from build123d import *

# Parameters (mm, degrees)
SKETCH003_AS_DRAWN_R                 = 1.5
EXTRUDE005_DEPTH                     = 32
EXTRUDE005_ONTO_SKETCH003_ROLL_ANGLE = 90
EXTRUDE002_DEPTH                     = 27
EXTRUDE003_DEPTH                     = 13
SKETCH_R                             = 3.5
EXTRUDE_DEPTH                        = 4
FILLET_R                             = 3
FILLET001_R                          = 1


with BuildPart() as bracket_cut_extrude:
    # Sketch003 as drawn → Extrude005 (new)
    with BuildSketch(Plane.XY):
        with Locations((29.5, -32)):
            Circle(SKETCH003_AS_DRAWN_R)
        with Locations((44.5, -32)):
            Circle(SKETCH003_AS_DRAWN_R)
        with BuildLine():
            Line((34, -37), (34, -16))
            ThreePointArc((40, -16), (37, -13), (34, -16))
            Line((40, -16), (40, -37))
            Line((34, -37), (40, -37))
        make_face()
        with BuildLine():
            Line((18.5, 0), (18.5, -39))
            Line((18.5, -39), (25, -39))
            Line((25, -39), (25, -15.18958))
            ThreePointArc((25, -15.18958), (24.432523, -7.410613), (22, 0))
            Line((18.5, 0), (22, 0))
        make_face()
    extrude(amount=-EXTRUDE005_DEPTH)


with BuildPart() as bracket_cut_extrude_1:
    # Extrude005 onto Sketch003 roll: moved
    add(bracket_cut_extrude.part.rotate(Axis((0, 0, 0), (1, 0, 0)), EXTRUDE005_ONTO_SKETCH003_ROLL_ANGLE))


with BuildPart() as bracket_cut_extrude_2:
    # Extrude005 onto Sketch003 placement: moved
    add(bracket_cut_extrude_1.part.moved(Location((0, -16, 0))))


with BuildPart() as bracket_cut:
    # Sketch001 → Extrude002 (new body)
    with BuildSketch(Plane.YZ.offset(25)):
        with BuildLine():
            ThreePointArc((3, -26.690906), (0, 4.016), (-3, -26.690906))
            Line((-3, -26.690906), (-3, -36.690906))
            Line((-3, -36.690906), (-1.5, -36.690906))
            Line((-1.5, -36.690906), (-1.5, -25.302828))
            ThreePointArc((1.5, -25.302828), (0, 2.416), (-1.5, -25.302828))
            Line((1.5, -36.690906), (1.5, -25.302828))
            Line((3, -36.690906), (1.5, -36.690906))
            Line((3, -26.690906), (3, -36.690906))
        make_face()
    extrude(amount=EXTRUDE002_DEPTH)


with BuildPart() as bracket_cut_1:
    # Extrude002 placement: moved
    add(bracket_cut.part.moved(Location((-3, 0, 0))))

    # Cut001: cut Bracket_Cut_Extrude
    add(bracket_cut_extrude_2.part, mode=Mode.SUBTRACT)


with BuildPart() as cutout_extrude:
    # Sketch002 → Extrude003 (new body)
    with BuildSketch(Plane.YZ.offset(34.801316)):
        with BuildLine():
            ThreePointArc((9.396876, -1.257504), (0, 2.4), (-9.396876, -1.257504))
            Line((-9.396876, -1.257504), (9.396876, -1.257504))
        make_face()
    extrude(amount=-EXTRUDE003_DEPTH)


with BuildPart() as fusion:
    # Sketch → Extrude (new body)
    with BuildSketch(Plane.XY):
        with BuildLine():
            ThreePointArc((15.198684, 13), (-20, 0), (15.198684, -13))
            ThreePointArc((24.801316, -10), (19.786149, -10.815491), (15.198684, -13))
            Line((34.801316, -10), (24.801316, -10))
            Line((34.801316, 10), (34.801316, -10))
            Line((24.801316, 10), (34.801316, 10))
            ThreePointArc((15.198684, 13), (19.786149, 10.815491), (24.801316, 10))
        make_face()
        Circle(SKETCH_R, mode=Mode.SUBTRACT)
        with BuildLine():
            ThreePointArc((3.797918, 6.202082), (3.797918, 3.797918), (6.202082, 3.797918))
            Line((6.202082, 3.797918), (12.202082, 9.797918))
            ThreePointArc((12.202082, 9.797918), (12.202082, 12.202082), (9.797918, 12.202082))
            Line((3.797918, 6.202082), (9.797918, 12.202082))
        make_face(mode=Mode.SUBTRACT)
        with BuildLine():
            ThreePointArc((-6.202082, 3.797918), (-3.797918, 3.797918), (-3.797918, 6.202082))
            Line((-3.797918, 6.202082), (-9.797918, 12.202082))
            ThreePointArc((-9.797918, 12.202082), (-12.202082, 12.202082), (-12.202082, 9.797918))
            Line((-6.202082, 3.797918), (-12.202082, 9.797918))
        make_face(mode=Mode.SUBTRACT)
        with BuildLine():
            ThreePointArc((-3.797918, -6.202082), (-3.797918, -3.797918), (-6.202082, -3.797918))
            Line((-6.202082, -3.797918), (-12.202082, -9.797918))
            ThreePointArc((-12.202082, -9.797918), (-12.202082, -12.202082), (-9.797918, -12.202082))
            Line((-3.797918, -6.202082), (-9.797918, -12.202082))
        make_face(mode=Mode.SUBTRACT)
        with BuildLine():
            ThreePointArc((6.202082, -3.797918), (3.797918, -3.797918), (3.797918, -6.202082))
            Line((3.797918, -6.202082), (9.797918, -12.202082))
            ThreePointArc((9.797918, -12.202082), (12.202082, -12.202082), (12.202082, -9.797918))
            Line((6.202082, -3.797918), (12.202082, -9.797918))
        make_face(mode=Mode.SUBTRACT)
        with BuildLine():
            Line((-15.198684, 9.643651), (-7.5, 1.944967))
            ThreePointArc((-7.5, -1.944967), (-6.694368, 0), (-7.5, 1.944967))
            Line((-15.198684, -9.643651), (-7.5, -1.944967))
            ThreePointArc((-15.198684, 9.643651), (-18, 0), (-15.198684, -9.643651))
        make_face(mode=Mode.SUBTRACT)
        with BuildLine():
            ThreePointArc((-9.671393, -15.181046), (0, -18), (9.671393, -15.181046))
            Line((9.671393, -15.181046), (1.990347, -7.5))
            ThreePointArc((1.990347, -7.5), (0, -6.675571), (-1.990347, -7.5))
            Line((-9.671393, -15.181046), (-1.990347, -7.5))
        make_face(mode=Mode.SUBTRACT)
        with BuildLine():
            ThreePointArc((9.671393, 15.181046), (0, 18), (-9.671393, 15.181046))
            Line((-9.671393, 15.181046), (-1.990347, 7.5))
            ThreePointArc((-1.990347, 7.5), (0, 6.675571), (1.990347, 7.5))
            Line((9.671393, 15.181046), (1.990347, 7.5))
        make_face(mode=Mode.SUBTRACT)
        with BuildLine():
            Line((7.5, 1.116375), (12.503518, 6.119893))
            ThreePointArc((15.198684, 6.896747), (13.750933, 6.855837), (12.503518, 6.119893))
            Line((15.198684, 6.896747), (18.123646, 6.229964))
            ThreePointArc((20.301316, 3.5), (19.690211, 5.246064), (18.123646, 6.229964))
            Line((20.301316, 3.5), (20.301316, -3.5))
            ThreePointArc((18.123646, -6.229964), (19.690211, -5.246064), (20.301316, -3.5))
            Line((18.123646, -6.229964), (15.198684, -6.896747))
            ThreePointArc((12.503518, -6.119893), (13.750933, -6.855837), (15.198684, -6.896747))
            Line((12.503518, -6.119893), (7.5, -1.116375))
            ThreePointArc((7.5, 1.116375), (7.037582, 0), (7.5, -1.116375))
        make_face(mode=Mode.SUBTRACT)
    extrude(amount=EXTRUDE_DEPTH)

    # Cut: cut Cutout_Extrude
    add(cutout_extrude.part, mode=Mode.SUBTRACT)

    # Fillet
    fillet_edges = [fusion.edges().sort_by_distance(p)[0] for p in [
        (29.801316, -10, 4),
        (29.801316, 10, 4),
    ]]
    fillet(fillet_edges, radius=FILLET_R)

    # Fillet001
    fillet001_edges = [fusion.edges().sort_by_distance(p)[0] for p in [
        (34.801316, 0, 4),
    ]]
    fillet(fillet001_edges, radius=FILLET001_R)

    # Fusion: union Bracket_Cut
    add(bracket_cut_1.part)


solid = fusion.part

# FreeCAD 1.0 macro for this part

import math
import FreeCAD as App
import Part
import Sketcher
from FreeCAD import Vector
Q = App.Units.Quantity


def edges_at(feature, points):
    """Names of the edges that pass closest to the given points."""
    edges = feature.Shape.Edges
    near = lambda p: min(range(len(edges)), key=lambda i: edges[i].distToShape(Part.Vertex(*p))[0])
    return sorted({f"Edge{near(p) + 1}" for p in points})

doc = App.newDocument("Part")
body = doc.addObject("PartDesign::Body", "Body")
body.AllowCompound = True

# Sketch on XY plane
sketch1 = body.newObject("Sketcher::SketchObject", "Sketch")
sketch1.AttachmentSupport = (doc.getObject("XY_Plane"), [""])
sketch1.MapMode = "FlatFace"
sketch1.addGeometry([
    Part.Circle(Vector(29.5, -32, 0), Vector(0, 0, 1), 1.5),  # 0
    Part.Circle(Vector(44.5, -32, 0), Vector(0, 0, 1), 1.5),  # 1
    Part.LineSegment(Vector(34, -16, 0), Vector(34, -37, 0)),  # 2
    Part.LineSegment(Vector(34, -37, 0), Vector(40, -37, 0)),  # 3
    Part.LineSegment(Vector(40, -37, 0), Vector(40, -16, 0)),  # 4
    Part.ArcOfCircle(Part.Circle(Vector(37, -16, 0), Vector(0, 0, 1), 3), math.radians(0), math.radians(180)),  # 5
    Part.LineSegment(Vector(18.5, 0, 0), Vector(18.5, -39, 0)),  # 6
    Part.LineSegment(Vector(18.5, -39, 0), Vector(25, -39, 0)),  # 7
    Part.LineSegment(Vector(25, -39, 0), Vector(25, -15.2, 0)),  # 8
    Part.ArcOfCircle(Part.Circle(Vector(-7, -13.6, 0), Vector(0, 0, 1), 32), math.radians(-3), math.radians(25)),  # 9
    Part.LineSegment(Vector(22, 0, 0), Vector(18.5, 0, 0)),  # 10
], False)
sketch1.addConstraint([
    Sketcher.Constraint("Coincident", 2, 2, 3, 1),
    Sketcher.Constraint("Coincident", 3, 2, 4, 1),
    Sketcher.Constraint("Tangent", 4, 2, 5, 1),
    Sketcher.Constraint("Tangent", 5, 2, 2, 1),
    Sketcher.Constraint("Coincident", 6, 2, 7, 1),
    Sketcher.Constraint("Coincident", 7, 2, 8, 1),
    Sketcher.Constraint("Coincident", 8, 2, 9, 1),
    Sketcher.Constraint("Coincident", 9, 2, 10, 1),
    Sketcher.Constraint("Coincident", 10, 2, 6, 1),
    Sketcher.Constraint("Vertical", 2),
    Sketcher.Constraint("Horizontal", 3),
    Sketcher.Constraint("Vertical", 4),
    Sketcher.Constraint("Vertical", 6),
    Sketcher.Constraint("Horizontal", 7),
    Sketcher.Constraint("Vertical", 8),
    Sketcher.Constraint("Horizontal", 10),
    Sketcher.Constraint("Equal", 0, 1),
    Sketcher.Constraint("PointOnObject", 9, 2, -1),
    Sketcher.Constraint("Horizontal", 0, 3, 1, 3),
    Sketcher.Constraint("Diameter", 0, Q("3 mm")),
    Sketcher.Constraint("Radius", 5, Q("3 mm")),
    Sketcher.Constraint("Radius", 9, Q("31.999998 mm")),
    Sketcher.Constraint("DistanceY", 2, 2, 2, 1, Q("21 mm")),
    Sketcher.Constraint("DistanceY", 6, 2, 6, 1, Q("39 mm")),
    Sketcher.Constraint("DistanceX", 7, 1, 7, 2, Q("6.5 mm")),
    Sketcher.Constraint("DistanceX", 10, 2, 10, 1, Q("3.5 mm")),
    Sketcher.Constraint("DistanceY", 0, 3, -1, 1, Q("32 mm")),
    Sketcher.Constraint("DistanceX", -1, 1, 5, 3, Q("37 mm")),
    Sketcher.Constraint("DistanceY", 5, 3, -1, 1, Q("16 mm")),
    Sketcher.Constraint("DistanceX", -1, 1, 7, 2, Q("25 mm")),
    Sketcher.Constraint("DistanceX", 0, 3, 1, 3, Q("15 mm")),
    Sketcher.Constraint("DistanceX", 6, 2, 0, 3, Q("11 mm")),
    Sketcher.Constraint("DistanceY", 8, 1, 8, 2, Q("23.81042 mm")),
])
pad1 = body.newObject("PartDesign::Pad", "Pad")
pad1.Profile = sketch1
pad1.Length = 32
pad1.Reversed = True
body2 = doc.addObject("PartDesign::Body", "Body001")
body2.AllowCompound = True
doc.recompute()

body.Placement = App.Placement(Vector(0, 0, 0), App.Rotation(Vector(1, 0, 0), 90))
boolean = body2.newObject("PartDesign::Boolean", "Boolean")
boolean.Type = "Fuse"
boolean.addObjects([body])
body3 = doc.addObject("PartDesign::Body", "Body002")
body3.AllowCompound = True
doc.recompute()

body2.Placement = App.Placement(Vector(0, -16, 0), App.Rotation(Vector(0, 0, 1), 0))
boolean2 = body3.newObject("PartDesign::Boolean", "Boolean001")
boolean2.Type = "Fuse"
boolean2.addObjects([body2])
body4 = doc.addObject("PartDesign::Body", "Body003")

# Sketch on YZ plane
sketch2 = body4.newObject("Sketcher::SketchObject", "Sketch001")
sketch2.AttachmentSupport = (doc.getObject("YZ_Plane003"), [""])
sketch2.MapMode = "FlatFace"
sketch2.AttachmentOffset = App.Placement(Vector(0, 0, 25), App.Rotation())
sketch2.addGeometry([
    Part.ArcOfCircle(Part.Circle(Vector(0, -11.5, 0), Vector(0, 0, 1), 15.5), math.radians(-79), math.radians(259)),  # 0
    Part.LineSegment(Vector(-3, -26.7, 0), Vector(-3, -36.7, 0)),  # 1
    Part.LineSegment(Vector(-3, -36.7, 0), Vector(-1.5, -36.7, 0)),  # 2
    Part.LineSegment(Vector(-1.5, -36.7, 0), Vector(-1.5, -25.3, 0)),  # 3
    Part.ArcOfCircle(Part.Circle(Vector(0, -11.5, 0), Vector(0, 0, 1), 13.9), math.radians(-84), math.radians(264)),  # 4
    Part.LineSegment(Vector(1.5, -25.3, 0), Vector(1.5, -36.7, 0)),  # 5
    Part.LineSegment(Vector(1.5, -36.7, 0), Vector(3, -36.7, 0)),  # 6
    Part.LineSegment(Vector(3, -36.7, 0), Vector(3, -26.7, 0)),  # 7
], False)
sketch2.addConstraint([
    Sketcher.Constraint("Coincident", 0, 2, 1, 1),
    Sketcher.Constraint("Coincident", 1, 2, 2, 1),
    Sketcher.Constraint("Coincident", 2, 2, 3, 1),
    Sketcher.Constraint("Coincident", 3, 2, 4, 2),
    Sketcher.Constraint("Coincident", 4, 1, 5, 1),
    Sketcher.Constraint("Coincident", 5, 2, 6, 1),
    Sketcher.Constraint("Coincident", 6, 2, 7, 1),
    Sketcher.Constraint("Coincident", 7, 2, 0, 1),
    Sketcher.Constraint("Vertical", 1),
    Sketcher.Constraint("Horizontal", 2),
    Sketcher.Constraint("Vertical", 3),
    Sketcher.Constraint("Vertical", 5),
    Sketcher.Constraint("Horizontal", 6),
    Sketcher.Constraint("Vertical", 7),
    Sketcher.Constraint("Coincident", 4, 3, 0, 3),
    Sketcher.Constraint("Symmetric", 3, 2, 4, 1, -2),
    Sketcher.Constraint("Symmetric", 1, 2, 6, 2, -2),
    Sketcher.Constraint("Radius", 0, Q("15.5 mm")),
    Sketcher.Constraint("Radius", 4, Q("13.9 mm")),
    Sketcher.Constraint("DistanceY", 1, 2, 1, 1, Q("10 mm")),
    Sketcher.Constraint("DistanceX", 2, 1, 2, 2, Q("1.5 mm")),
    Sketcher.Constraint("DistanceX", 0, 2, -1, 1, Q("3 mm")),
    Sketcher.Constraint("DistanceY", 0, 3, -1, 1, Q("11.484 mm")),
])
pad2 = body4.newObject("PartDesign::Pad", "Pad001")
pad2.Profile = sketch2
pad2.Length = 27
body5 = doc.addObject("PartDesign::Body", "Body004")
doc.recompute()

body4.Placement = App.Placement(Vector(-3, 0, 0), App.Rotation(Vector(0, 0, 1), 0))
boolean3 = body5.newObject("PartDesign::Boolean", "Boolean002")
boolean3.Type = "Fuse"
boolean3.addObjects([body4])
doc.recompute()

boolean4 = body5.newObject("PartDesign::Boolean", "Boolean003")
boolean4.Type = "Cut"
boolean4.addObjects([body3])
body6 = doc.addObject("PartDesign::Body", "Body005")

# Sketch on YZ plane
sketch3 = body6.newObject("Sketcher::SketchObject", "Sketch002")
sketch3.AttachmentSupport = (doc.getObject("YZ_Plane005"), [""])
sketch3.MapMode = "FlatFace"
sketch3.AttachmentOffset = App.Placement(Vector(0, 0, 34.801316), App.Rotation())
sketch3.addGeometry([
    Part.ArcOfCircle(Part.Circle(Vector(0, -12, 0), Vector(0, 0, 1), 14), math.radians(47), math.radians(133)),
    Part.LineSegment(Vector(-9, -1, 0), Vector(9, -1, 0)),
], False)
sketch3.addConstraint([
    Sketcher.Constraint("Coincident", 0, 1, 1, 2),
    Sketcher.Constraint("Coincident", 1, 1, 0, 2),
    Sketcher.Constraint("Horizontal", 1),
    Sketcher.Constraint("PointOnObject", 0, 3, -2),
    Sketcher.Constraint("Radius", 0, Q("13.9 mm")),
    Sketcher.Constraint("DistanceY", 0, 3, -1, 1, Q("11.5 mm")),
    Sketcher.Constraint("DistanceX", 1, 1, 1, 2, Q("18.793752 mm")),
])
pad3 = body6.newObject("PartDesign::Pad", "Pad002")
pad3.Profile = sketch3
pad3.Length = 13
pad3.Reversed = True
body7 = doc.addObject("PartDesign::Body", "Body006")

# Sketch on XY plane
sketch4 = body7.newObject("Sketcher::SketchObject", "Sketch003")
sketch4.AttachmentSupport = (doc.getObject("XY_Plane006"), [""])
sketch4.MapMode = "FlatFace"
sketch4.addGeometry([
    Part.ArcOfCircle(Part.Circle(Vector(0, 0, 0), Vector(0, 0, 1), 20), math.radians(41), math.radians(319)),  # 0
    Part.ArcOfCircle(Part.Circle(Vector(25.2, -28, 0), Vector(0, 0, 1), 18), math.radians(91), math.radians(124)),  # 1
    Part.LineSegment(Vector(24.8, -10, 0), Vector(34.8, -10, 0)),  # 2
    Part.LineSegment(Vector(34.8, -10, 0), Vector(34.8, 10, 0)),  # 3
    Part.LineSegment(Vector(34.8, 10, 0), Vector(24.8, 10, 0)),  # 4
    Part.ArcOfCircle(Part.Circle(Vector(25.2, 28, 0), Vector(0, 0, 1), 18), math.radians(-124), math.radians(-91)),  # 5
    Part.ArcOfCircle(Part.Circle(Vector(0, 0, 0), Vector(0, 0, 1), 18), math.radians(-123), math.radians(-57)),  # 6
    Part.LineSegment(Vector(-9.7, -15.2, 0), Vector(-2, -7.5, 0)),  # 7
    Part.ArcOfCircle(Part.Circle(Vector(0, -9.5, 0), Vector(0, 0, 1), 2.8), math.radians(45), math.radians(135)),  # 8
    Part.LineSegment(Vector(2, -7.5, 0), Vector(9.7, -15.2, 0)),  # 9
    Part.ArcOfCircle(Part.Circle(Vector(-5, -5, 0), Vector(0, 0, 1), 1.7), math.radians(-45), math.radians(135)),  # 10
    Part.LineSegment(Vector(-3.8, -6.2, 0), Vector(-9.8, -12.2, 0)),  # 11
    Part.ArcOfCircle(Part.Circle(Vector(-11, -11, 0), Vector(0, 0, 1), 1.7), math.radians(135), math.radians(315)),  # 12
    Part.LineSegment(Vector(-12.2, -9.8, 0), Vector(-6.2, -3.8, 0)),  # 13
    Part.ArcOfCircle(Part.Circle(Vector(5, -5, 0), Vector(0, 0, 1), 1.7), math.radians(45), math.radians(225)),  # 14
    Part.LineSegment(Vector(6.2, -3.8, 0), Vector(12.2, -9.8, 0)),  # 15
    Part.ArcOfCircle(Part.Circle(Vector(11, -11, 0), Vector(0, 0, 1), 1.7), math.radians(-135), math.radians(45)),  # 16
    Part.LineSegment(Vector(9.8, -12.2, 0), Vector(3.8, -6.2, 0)),  # 17
    Part.ArcOfCircle(Part.Circle(Vector(0, 0, 0), Vector(0, 0, 1), 18), math.radians(148), math.radians(212)),  # 18
    Part.LineSegment(Vector(-15.2, 9.6, 0), Vector(-7.5, 1.9, 0)),  # 19
    Part.ArcOfCircle(Part.Circle(Vector(-9.4, 0, 0), Vector(0, 0, 1), 2.8), math.radians(-45), math.radians(45)),  # 20
    Part.LineSegment(Vector(-7.5, -1.9, 0), Vector(-15.2, -9.6, 0)),  # 21
    Part.Circle(Vector(0, 0, 0), Vector(0, 0, 1), 3.5),  # 22
    Part.ArcOfCircle(Part.Circle(Vector(-5, 5, 0), Vector(0, 0, 1), 1.7), math.radians(-135), math.radians(45)),  # 23
    Part.LineSegment(Vector(-6.2, 3.8, 0), Vector(-12.2, 9.8, 0)),  # 24
    Part.ArcOfCircle(Part.Circle(Vector(-11, 11, 0), Vector(0, 0, 1), 1.7), math.radians(45), math.radians(225)),  # 25
    Part.LineSegment(Vector(-9.8, 12.2, 0), Vector(-3.8, 6.2, 0)),  # 26
    Part.ArcOfCircle(Part.Circle(Vector(0, 0, 0), Vector(0, 0, 1), 18), math.radians(57), math.radians(123)),  # 27
    Part.LineSegment(Vector(9.7, 15.2, 0), Vector(2, 7.5, 0)),  # 28
    Part.ArcOfCircle(Part.Circle(Vector(0, 9.5, 0), Vector(0, 0, 1), 2.8), math.radians(-135), math.radians(-45)),  # 29
    Part.LineSegment(Vector(-2, 7.5, 0), Vector(-9.7, 15.2, 0)),  # 30
    Part.ArcOfCircle(Part.Circle(Vector(5, 5, 0), Vector(0, 0, 1), 1.7), math.radians(135), math.radians(315)),  # 31
    Part.LineSegment(Vector(3.8, 6.2, 0), Vector(9.8, 12.2, 0)),  # 32
    Part.ArcOfCircle(Part.Circle(Vector(11, 11, 0), Vector(0, 0, 1), 1.7), math.radians(-45), math.radians(135)),  # 33
    Part.LineSegment(Vector(12.2, 9.8, 0), Vector(6.2, 3.8, 0)),  # 34
    Part.ArcOfCircle(Part.Circle(Vector(8.6, 0, 0), Vector(0, 0, 1), 1.6), math.radians(135), math.radians(225)),  # 35
    Part.LineSegment(Vector(7.5, 1.1, 0), Vector(12.5, 6.1, 0)),  # 36
    Part.ArcOfCircle(Part.Circle(Vector(14.6, 4.1, 0), Vector(0, 0, 1), 2.9), math.radians(77), math.radians(135)),  # 37
    Part.LineSegment(Vector(15.2, 6.9, 0), Vector(18.1, 6.2, 0)),  # 38
    Part.ArcOfCircle(Part.Circle(Vector(17.5, 3.5, 0), Vector(0, 0, 1), 2.8), math.radians(0), math.radians(77)),  # 39
    Part.LineSegment(Vector(20.3, 3.5, 0), Vector(20.3, -3.5, 0)),  # 40
    Part.ArcOfCircle(Part.Circle(Vector(17.5, -3.5, 0), Vector(0, 0, 1), 2.8), math.radians(-77), math.radians(0)),  # 41
    Part.LineSegment(Vector(18.1, -6.2, 0), Vector(15.2, -6.9, 0)),  # 42
    Part.ArcOfCircle(Part.Circle(Vector(14.6, -4.1, 0), Vector(0, 0, 1), 2.9), math.radians(-135), math.radians(-77)),  # 43
    Part.LineSegment(Vector(12.5, -6.1, 0), Vector(7.5, -1.1, 0)),  # 44
], False)
sketch4.addConstraint([
    Sketcher.Constraint("Coincident", 0, 2, 1, 2),
    Sketcher.Constraint("Coincident", 1, 1, 2, 1),
    Sketcher.Constraint("Coincident", 2, 2, 3, 1),
    Sketcher.Constraint("Coincident", 3, 2, 4, 1),
    Sketcher.Constraint("Coincident", 4, 2, 5, 2),
    Sketcher.Constraint("Coincident", 5, 1, 0, 1),
    Sketcher.Constraint("Coincident", 6, 1, 7, 1),
    Sketcher.Constraint("Tangent", 7, 2, 8, 2),
    Sketcher.Constraint("Tangent", 8, 1, 9, 1),
    Sketcher.Constraint("Coincident", 9, 2, 6, 2),
    Sketcher.Constraint("Tangent", 10, 1, 11, 1),
    Sketcher.Constraint("Tangent", 11, 2, 12, 2),
    Sketcher.Constraint("Tangent", 12, 1, 13, 1),
    Sketcher.Constraint("Tangent", 13, 2, 10, 2),
    Sketcher.Constraint("Tangent", 14, 1, 15, 1),
    Sketcher.Constraint("Tangent", 15, 2, 16, 2),
    Sketcher.Constraint("Tangent", 16, 1, 17, 1),
    Sketcher.Constraint("Tangent", 17, 2, 14, 2),
    Sketcher.Constraint("Coincident", 18, 1, 19, 1),
    Sketcher.Constraint("Tangent", 19, 2, 20, 2),
    Sketcher.Constraint("Tangent", 20, 1, 21, 1),
    Sketcher.Constraint("Coincident", 21, 2, 18, 2),
    Sketcher.Constraint("Tangent", 23, 1, 24, 1),
    Sketcher.Constraint("Tangent", 24, 2, 25, 2),
    Sketcher.Constraint("Tangent", 25, 1, 26, 1),
    Sketcher.Constraint("Tangent", 26, 2, 23, 2),
    Sketcher.Constraint("Coincident", 27, 1, 28, 1),
    Sketcher.Constraint("Tangent", 28, 2, 29, 2),
    Sketcher.Constraint("Tangent", 29, 1, 30, 1),
    Sketcher.Constraint("Coincident", 30, 2, 27, 2),
    Sketcher.Constraint("Tangent", 31, 1, 32, 1),
    Sketcher.Constraint("Tangent", 32, 2, 33, 2),
    Sketcher.Constraint("Tangent", 33, 1, 34, 1),
    Sketcher.Constraint("Tangent", 34, 2, 31, 2),
    Sketcher.Constraint("Tangent", 35, 1, 36, 1),
    Sketcher.Constraint("Tangent", 36, 2, 37, 2),
    Sketcher.Constraint("Tangent", 37, 1, 38, 1),
    Sketcher.Constraint("Tangent", 38, 2, 39, 2),
    Sketcher.Constraint("Tangent", 39, 1, 40, 1),
    Sketcher.Constraint("Tangent", 40, 2, 41, 2),
    Sketcher.Constraint("Tangent", 41, 1, 42, 1),
    Sketcher.Constraint("Tangent", 42, 2, 43, 2),
    Sketcher.Constraint("Tangent", 43, 1, 44, 1),
    Sketcher.Constraint("Tangent", 44, 2, 35, 2),
    Sketcher.Constraint("Horizontal", 2),
    Sketcher.Constraint("Vertical", 3),
    Sketcher.Constraint("Horizontal", 4),
    Sketcher.Constraint("Vertical", 40),
    Sketcher.Constraint("Coincident", 0, 3, -1, 1),
    Sketcher.Constraint("Coincident", 6, 3, -1, 1),
    Sketcher.Constraint("Coincident", 18, 3, -1, 1),
    Sketcher.Constraint("Coincident", 22, 3, -1, 1),
    Sketcher.Constraint("Coincident", 27, 3, -1, 1),
    Sketcher.Constraint("Equal", 1, 5),
    Sketcher.Constraint("Equal", 10, 12),
    Sketcher.Constraint("Equal", 12, 14),
    Sketcher.Constraint("Equal", 14, 16),
    Sketcher.Constraint("Equal", 6, 18),
    Sketcher.Constraint("Equal", 16, 23),
    Sketcher.Constraint("Equal", 23, 25),
    Sketcher.Constraint("Equal", 18, 27),
    Sketcher.Constraint("Equal", 8, 29),
    Sketcher.Constraint("Equal", 25, 31),
    Sketcher.Constraint("Equal", 31, 33),
    Sketcher.Constraint("Equal", 39, 41),
    Sketcher.Constraint("Equal", 37, 43),
    Sketcher.Constraint("Symmetric", 14, 3, 23, 3, -1, 1),
    Sketcher.Constraint("Symmetric", 16, 3, 25, 3, -1, 1),
    Sketcher.Constraint("Symmetric", 8, 3, 29, 3, -1, 1),
    Sketcher.Constraint("Symmetric", 10, 3, 31, 3, -1, 1),
    Sketcher.Constraint("Symmetric", 12, 3, 33, 3, -1, 1),
    Sketcher.Constraint("Symmetric", 10, 3, 14, 3, -2),
    Sketcher.Constraint("Symmetric", 12, 3, 16, 3, -2),
    Sketcher.Constraint("Symmetric", 7, 2, 8, 1, -2),
    Sketcher.Constraint("Symmetric", 1, 3, 5, 3, -1),
    Sketcher.Constraint("Symmetric", 37, 3, 43, 3, -1),
    Sketcher.Constraint("Symmetric", 19, 2, 20, 1, -1),
    Sketcher.Constraint("PointOnObject", 35, 3, -1),
    Sketcher.Constraint("Perpendicular", 7, 9),
    Sketcher.Constraint("Perpendicular", 9, 11),
    Sketcher.Constraint("Parallel", 17, 19),
    Sketcher.Constraint("Perpendicular", 26, 28),
    Sketcher.Constraint("Perpendicular", 28, 30),
    Sketcher.Constraint("Parallel", 34, 36),
    Sketcher.Constraint("Vertical", 1, 1, 4, 2),
    Sketcher.Constraint("Vertical", 5, 1, 37, 1),
    Sketcher.Constraint("Vertical", 38, 2, 41, 1),
    Sketcher.Constraint("Diameter", 22, Q("7 mm")),
    Sketcher.Constraint("Radius", 0, Q("20 mm")),
    Sketcher.Constraint("Radius", 6, Q("18 mm")),
    Sketcher.Constraint("Radius", 10, Q("1.700001 mm")),
    Sketcher.Constraint("Radius", 37, Q("2.899999 mm")),
    Sketcher.Constraint("Radius", 39, Q("2.799999 mm")),
    Sketcher.Constraint("DistanceX", 2, 1, 2, 2, Q("10 mm")),
    Sketcher.Constraint("DistanceY", 3, 1, 3, 2, Q("20 mm")),
    Sketcher.Constraint("DistanceY", 40, 2, 40, 1, Q("7 mm")),
    Sketcher.Constraint("Distance", 38, Q("3 mm")),
    Sketcher.Constraint("DistanceX", 10, 3, -1, 1, Q("5 mm")),
    Sketcher.Constraint("DistanceY", 10, 3, -1, 1, Q("5 mm")),
    Sketcher.Constraint("DistanceX", 12, 3, -1, 1, Q("11 mm")),
    Sketcher.Constraint("DistanceY", 0, 2, -1, 1, Q("13 mm")),
    Sketcher.Constraint("DistanceY", 7, 2, -1, 1, Q("7.5 mm")),
    Sketcher.Constraint("DistanceX", 19, 2, -1, 1, Q("7.5 mm")),
    Sketcher.Constraint("DistanceX", -1, 1, 35, 1, Q("7.5 mm")),
    Sketcher.Constraint("Radius", 20, Q("2.750598 mm")),
    Sketcher.Constraint("Radius", 35, Q("1.578792 mm")),
    Sketcher.Constraint("Radius", 1, Q("18.000003 mm")),
    Sketcher.Constraint("Radius", 8, Q("2.814775 mm")),
    Sketcher.Constraint("DistanceX", -1, 1, 1, 3, Q("25.15376 mm")),
])
pad4 = body7.newObject("PartDesign::Pad", "Pad003")
pad4.Profile = sketch4
pad4.Length = 4
doc.recompute()

boolean5 = body7.newObject("PartDesign::Boolean", "Boolean004")
boolean5.Type = "Cut"
boolean5.addObjects([body6])
doc.recompute()

fillet = body7.newObject("PartDesign::Fillet", "Fillet")
fillet.Base = (boolean5, edges_at(boolean5, [(29.801, -10, 4), (29.801, 10, 4)]))
fillet.Radius = 3
doc.recompute()

fillet2 = body7.newObject("PartDesign::Fillet", "Fillet001")
fillet2.Base = (fillet, edges_at(fillet, [(34.801, 0, 4)]))
fillet2.Radius = 1
doc.recompute()

boolean6 = body7.newObject("PartDesign::Boolean", "Boolean005")
boolean6.Type = "Fuse"
boolean6.addObjects([body5])

doc.recompute()
